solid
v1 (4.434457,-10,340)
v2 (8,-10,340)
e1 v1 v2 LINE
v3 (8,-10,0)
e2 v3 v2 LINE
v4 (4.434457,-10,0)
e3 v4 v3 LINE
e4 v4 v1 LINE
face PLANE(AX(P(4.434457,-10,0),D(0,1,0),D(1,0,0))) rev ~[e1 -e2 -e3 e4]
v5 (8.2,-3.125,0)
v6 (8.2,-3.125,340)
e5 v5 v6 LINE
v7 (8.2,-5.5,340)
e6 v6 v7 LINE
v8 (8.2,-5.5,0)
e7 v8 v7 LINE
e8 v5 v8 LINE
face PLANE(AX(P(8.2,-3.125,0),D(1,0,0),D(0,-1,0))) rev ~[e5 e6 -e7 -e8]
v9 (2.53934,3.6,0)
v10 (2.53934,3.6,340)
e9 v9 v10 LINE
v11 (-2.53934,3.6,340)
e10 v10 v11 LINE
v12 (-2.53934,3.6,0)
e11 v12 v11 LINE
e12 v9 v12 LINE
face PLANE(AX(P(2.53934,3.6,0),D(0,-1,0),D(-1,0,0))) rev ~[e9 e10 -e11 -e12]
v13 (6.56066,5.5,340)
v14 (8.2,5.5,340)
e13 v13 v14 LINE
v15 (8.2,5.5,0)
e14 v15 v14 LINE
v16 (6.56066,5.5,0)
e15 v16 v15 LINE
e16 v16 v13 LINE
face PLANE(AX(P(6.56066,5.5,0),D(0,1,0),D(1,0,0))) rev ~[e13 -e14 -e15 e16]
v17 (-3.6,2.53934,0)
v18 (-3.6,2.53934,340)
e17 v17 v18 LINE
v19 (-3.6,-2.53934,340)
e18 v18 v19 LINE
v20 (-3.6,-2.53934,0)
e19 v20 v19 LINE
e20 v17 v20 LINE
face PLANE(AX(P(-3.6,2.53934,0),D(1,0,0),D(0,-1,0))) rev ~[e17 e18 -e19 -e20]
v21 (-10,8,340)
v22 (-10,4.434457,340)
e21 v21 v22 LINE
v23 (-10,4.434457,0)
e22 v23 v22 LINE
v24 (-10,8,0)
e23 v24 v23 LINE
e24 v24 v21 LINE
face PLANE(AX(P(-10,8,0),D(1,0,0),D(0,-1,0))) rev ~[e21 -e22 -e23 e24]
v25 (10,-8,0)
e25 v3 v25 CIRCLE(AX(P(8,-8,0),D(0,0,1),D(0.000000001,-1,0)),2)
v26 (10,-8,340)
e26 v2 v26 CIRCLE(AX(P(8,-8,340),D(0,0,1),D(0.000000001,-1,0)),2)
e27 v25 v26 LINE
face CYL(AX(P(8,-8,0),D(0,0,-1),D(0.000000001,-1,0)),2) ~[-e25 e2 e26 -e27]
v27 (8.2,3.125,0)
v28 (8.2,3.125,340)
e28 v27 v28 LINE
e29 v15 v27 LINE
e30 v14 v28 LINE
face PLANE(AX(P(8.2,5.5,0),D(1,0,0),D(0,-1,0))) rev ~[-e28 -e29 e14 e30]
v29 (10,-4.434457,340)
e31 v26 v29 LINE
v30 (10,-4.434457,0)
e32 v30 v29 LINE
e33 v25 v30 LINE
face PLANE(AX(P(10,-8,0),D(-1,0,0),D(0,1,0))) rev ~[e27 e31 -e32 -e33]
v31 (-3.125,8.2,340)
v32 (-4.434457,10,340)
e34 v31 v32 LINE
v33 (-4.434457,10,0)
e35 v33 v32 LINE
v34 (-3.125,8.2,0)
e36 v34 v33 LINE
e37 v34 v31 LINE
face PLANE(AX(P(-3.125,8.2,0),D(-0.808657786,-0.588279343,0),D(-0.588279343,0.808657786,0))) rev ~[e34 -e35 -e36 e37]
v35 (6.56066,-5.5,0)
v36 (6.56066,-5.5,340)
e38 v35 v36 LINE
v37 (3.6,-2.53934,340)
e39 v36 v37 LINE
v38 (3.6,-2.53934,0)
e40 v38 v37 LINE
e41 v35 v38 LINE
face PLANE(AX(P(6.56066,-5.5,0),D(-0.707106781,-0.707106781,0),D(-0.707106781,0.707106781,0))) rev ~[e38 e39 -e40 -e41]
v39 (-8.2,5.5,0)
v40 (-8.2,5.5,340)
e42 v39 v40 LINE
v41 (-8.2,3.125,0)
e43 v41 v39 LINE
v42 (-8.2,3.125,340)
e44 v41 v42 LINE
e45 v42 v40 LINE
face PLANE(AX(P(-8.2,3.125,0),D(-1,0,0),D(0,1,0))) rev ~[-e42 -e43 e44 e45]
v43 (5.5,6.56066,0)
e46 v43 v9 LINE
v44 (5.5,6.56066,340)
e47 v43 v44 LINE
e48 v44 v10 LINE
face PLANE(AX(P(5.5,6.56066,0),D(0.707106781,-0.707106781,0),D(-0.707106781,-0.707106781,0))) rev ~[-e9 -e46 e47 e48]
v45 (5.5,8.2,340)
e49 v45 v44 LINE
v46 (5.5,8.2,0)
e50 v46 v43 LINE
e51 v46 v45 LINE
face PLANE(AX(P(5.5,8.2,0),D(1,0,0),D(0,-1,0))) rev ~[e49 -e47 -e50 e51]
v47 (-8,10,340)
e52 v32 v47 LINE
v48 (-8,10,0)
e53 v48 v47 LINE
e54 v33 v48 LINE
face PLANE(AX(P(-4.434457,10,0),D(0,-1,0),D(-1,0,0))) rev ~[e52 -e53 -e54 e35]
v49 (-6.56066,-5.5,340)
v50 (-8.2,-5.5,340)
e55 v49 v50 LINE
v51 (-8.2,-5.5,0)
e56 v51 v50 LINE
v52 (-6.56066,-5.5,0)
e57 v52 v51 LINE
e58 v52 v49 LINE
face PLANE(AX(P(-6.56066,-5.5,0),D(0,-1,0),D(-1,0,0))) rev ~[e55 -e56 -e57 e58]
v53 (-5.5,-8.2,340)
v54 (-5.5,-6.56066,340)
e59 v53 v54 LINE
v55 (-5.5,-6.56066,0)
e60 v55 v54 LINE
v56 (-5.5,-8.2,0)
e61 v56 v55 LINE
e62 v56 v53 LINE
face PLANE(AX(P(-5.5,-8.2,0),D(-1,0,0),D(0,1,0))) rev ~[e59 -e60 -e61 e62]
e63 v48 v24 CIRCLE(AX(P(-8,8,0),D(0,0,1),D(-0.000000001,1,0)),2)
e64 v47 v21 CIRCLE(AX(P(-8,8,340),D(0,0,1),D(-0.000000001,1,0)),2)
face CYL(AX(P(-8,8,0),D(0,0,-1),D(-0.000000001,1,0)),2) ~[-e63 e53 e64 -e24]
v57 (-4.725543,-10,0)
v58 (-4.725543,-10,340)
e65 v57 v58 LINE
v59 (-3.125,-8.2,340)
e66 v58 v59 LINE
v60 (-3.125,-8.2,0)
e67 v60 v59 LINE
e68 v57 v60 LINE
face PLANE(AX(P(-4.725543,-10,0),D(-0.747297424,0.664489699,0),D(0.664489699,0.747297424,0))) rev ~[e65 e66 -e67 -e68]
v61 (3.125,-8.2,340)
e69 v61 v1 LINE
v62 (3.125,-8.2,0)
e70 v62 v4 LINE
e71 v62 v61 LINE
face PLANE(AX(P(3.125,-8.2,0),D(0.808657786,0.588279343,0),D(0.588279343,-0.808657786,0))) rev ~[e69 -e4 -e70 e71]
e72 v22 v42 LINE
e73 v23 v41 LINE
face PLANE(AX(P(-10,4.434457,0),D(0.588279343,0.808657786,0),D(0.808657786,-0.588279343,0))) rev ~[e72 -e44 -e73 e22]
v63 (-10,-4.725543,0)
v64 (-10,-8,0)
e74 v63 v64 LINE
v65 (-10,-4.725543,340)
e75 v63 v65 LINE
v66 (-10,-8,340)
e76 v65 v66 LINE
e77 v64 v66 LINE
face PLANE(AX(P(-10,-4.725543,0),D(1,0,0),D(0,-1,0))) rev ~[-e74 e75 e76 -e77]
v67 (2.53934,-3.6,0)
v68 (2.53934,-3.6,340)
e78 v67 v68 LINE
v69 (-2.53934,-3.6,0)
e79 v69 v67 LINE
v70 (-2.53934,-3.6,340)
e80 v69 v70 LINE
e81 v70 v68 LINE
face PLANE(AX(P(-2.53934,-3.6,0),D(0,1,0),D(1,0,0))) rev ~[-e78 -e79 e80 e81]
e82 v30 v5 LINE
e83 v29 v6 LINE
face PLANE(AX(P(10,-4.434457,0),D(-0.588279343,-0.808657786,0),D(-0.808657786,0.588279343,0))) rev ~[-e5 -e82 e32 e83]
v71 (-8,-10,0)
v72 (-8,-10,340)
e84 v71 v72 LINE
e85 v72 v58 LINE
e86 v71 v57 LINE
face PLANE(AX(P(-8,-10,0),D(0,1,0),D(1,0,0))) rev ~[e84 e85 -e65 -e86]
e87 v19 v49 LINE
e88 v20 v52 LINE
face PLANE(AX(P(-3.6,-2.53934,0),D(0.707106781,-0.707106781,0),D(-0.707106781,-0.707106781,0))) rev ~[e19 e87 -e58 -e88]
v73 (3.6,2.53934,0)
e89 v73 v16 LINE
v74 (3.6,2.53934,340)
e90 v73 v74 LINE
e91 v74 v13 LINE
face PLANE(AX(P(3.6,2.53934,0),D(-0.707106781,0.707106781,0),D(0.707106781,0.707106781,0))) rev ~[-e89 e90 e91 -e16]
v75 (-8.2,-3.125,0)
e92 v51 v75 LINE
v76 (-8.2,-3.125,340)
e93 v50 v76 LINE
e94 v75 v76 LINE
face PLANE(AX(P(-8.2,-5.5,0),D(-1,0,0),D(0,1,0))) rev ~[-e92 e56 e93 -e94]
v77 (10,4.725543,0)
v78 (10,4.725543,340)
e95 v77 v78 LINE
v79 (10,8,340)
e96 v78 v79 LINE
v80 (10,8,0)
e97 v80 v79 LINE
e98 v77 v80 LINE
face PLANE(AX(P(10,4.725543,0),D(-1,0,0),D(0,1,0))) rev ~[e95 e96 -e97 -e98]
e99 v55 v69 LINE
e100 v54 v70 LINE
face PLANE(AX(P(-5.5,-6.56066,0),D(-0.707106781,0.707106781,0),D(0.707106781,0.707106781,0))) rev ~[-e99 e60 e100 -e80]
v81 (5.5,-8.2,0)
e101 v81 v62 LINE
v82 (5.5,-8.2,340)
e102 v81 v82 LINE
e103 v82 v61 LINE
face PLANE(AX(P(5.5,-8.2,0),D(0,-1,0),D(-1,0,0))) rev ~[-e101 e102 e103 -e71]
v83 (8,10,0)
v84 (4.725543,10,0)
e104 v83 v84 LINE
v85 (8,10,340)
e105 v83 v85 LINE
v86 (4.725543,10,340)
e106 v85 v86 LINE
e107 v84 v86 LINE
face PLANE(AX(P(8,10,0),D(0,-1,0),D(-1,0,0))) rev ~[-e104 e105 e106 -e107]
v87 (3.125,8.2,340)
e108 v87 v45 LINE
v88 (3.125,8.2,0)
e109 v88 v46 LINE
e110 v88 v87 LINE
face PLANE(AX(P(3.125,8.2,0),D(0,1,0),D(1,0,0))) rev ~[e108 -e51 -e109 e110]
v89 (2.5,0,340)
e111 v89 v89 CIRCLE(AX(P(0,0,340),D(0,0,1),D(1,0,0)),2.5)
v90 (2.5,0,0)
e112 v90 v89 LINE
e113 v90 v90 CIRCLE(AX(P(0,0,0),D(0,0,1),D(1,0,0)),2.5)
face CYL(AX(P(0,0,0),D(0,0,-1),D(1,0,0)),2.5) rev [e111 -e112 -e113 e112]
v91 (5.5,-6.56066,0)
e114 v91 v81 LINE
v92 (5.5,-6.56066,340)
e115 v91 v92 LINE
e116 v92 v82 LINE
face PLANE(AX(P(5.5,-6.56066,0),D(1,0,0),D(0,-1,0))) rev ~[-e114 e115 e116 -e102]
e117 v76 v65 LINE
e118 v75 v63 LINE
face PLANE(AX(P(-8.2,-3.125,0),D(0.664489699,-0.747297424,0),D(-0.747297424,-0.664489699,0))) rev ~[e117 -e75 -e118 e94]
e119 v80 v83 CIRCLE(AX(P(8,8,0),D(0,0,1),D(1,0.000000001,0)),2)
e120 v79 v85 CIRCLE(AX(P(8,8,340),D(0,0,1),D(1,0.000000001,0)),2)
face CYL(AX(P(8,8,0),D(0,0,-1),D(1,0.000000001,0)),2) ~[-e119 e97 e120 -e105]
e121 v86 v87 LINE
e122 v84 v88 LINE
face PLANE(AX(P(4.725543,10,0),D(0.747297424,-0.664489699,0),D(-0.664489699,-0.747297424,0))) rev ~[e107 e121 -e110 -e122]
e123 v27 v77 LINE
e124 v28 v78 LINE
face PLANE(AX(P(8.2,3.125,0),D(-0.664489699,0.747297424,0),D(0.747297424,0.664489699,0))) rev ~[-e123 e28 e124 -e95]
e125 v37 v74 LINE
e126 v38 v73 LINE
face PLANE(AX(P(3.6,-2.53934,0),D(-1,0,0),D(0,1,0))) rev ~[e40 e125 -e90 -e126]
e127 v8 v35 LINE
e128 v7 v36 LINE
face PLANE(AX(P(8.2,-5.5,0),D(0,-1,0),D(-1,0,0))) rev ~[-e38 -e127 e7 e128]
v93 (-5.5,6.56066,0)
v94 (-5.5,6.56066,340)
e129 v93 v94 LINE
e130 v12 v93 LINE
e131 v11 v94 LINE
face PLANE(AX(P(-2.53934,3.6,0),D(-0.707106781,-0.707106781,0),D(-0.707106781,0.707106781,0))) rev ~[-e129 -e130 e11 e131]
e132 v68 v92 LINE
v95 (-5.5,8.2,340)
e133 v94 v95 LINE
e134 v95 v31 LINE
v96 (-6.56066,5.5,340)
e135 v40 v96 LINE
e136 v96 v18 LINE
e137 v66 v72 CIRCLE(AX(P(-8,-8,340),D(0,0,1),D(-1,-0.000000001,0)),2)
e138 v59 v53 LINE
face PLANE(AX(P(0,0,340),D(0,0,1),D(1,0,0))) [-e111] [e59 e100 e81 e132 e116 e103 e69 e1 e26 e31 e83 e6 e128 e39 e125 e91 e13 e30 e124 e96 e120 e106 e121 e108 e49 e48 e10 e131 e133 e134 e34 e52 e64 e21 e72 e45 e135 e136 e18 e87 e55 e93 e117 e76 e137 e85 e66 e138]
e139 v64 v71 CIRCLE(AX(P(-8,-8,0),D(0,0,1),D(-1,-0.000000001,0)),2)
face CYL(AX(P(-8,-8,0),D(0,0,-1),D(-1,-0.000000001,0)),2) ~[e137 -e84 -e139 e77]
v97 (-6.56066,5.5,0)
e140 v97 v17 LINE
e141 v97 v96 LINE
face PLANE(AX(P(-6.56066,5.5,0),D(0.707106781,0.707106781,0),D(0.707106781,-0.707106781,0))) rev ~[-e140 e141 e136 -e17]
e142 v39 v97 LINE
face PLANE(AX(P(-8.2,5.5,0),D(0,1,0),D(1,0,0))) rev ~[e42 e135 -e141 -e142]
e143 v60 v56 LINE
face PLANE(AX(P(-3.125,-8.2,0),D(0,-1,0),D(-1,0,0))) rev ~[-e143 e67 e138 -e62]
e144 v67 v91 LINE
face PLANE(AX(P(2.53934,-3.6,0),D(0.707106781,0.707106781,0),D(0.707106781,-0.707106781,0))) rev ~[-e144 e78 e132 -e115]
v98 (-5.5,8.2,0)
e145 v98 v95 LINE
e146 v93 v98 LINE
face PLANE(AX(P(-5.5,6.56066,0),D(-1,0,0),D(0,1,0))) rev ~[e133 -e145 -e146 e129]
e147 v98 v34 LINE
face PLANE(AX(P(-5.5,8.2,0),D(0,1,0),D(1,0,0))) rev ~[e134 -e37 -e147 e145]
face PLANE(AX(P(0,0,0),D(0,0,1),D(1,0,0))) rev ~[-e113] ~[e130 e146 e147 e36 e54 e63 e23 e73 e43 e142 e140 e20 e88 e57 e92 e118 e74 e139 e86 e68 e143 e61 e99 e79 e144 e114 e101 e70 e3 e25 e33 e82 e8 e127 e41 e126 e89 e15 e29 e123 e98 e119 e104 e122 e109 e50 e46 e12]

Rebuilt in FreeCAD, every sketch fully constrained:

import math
import FreeCAD as App
import Part
import Sketcher
from FreeCAD import Vector
Q = App.Units.Quantity

doc = App.newDocument("Part")
params = doc.addObject("Spreadsheet::Sheet", "Params")
for row, (alias, value) in enumerate([
    ("sketch1_diameter", "5 mm"),
    ("sketch1_radius", "2 mm"),
    ("pad1_length", "340 mm"),
], start=1):
    params.set(f"A{row}", alias)
    params.set(f"B{row}", "=" + value)
    params.setAlias(f"B{row}", alias)

body = doc.addObject("PartDesign::Body", "Body")

# Sketch on XY plane
sketch1 = body.newObject("Sketcher::SketchObject", "Sketch")
sketch1.AttachmentSupport = (doc.getObject("XY_Plane"), [""])
sketch1.MapMode = "FlatFace"
sketch1.addGeometry([
    Part.LineSegment(Vector(-4.7, -10, 0), Vector(-3.1, -8.2, 0)),  # 0
    Part.LineSegment(Vector(-3.1, -8.2, 0), Vector(-5.5, -8.2, 0)),  # 1
    Part.LineSegment(Vector(-5.5, -8.2, 0), Vector(-5.5, -6.6, 0)),  # 2
    Part.LineSegment(Vector(-5.5, -6.6, 0), Vector(-2.5, -3.6, 0)),  # 3
    Part.LineSegment(Vector(-2.5, -3.6, 0), Vector(2.5, -3.6, 0)),  # 4
    Part.LineSegment(Vector(2.5, -3.6, 0), Vector(5.5, -6.6, 0)),  # 5
    Part.LineSegment(Vector(5.5, -6.6, 0), Vector(5.5, -8.2, 0)),  # 6
    Part.LineSegment(Vector(5.5, -8.2, 0), Vector(3.1, -8.2, 0)),  # 7
    Part.LineSegment(Vector(3.1, -8.2, 0), Vector(4.4, -10, 0)),  # 8
    Part.LineSegment(Vector(4.4, -10, 0), Vector(8, -10, 0)),  # 9
    Part.ArcOfCircle(Part.Circle(Vector(8, -8, 0), Vector(0, 0, 1), 2), math.radians(-90), math.radians(0)),  # 10
    Part.LineSegment(Vector(10, -8, 0), Vector(10, -4.4, 0)),  # 11
    Part.LineSegment(Vector(10, -4.4, 0), Vector(8.2, -3.1, 0)),  # 12
    Part.LineSegment(Vector(8.2, -3.1, 0), Vector(8.2, -5.5, 0)),  # 13
    Part.LineSegment(Vector(8.2, -5.5, 0), Vector(6.6, -5.5, 0)),  # 14
    Part.LineSegment(Vector(6.6, -5.5, 0), Vector(3.6, -2.5, 0)),  # 15
    Part.LineSegment(Vector(3.6, -2.5, 0), Vector(3.6, 2.5, 0)),  # 16
    Part.LineSegment(Vector(3.6, 2.5, 0), Vector(6.6, 5.5, 0)),  # 17
    Part.LineSegment(Vector(6.6, 5.5, 0), Vector(8.2, 5.5, 0)),  # 18
    Part.LineSegment(Vector(8.2, 5.5, 0), Vector(8.2, 3.1, 0)),  # 19
    Part.LineSegment(Vector(8.2, 3.1, 0), Vector(10, 4.7, 0)),  # 20
    Part.LineSegment(Vector(10, 4.7, 0), Vector(10, 8, 0)),  # 21
    Part.ArcOfCircle(Part.Circle(Vector(8, 8, 0), Vector(0, 0, 1), 2), math.radians(0), math.radians(90)),  # 22
    Part.LineSegment(Vector(8, 10, 0), Vector(4.7, 10, 0)),  # 23
    Part.LineSegment(Vector(4.7, 10, 0), Vector(3.1, 8.2, 0)),  # 24
    Part.LineSegment(Vector(3.1, 8.2, 0), Vector(5.5, 8.2, 0)),  # 25
    Part.LineSegment(Vector(5.5, 8.2, 0), Vector(5.5, 6.6, 0)),  # 26
    Part.LineSegment(Vector(5.5, 6.6, 0), Vector(2.5, 3.6, 0)),  # 27
    Part.LineSegment(Vector(2.5, 3.6, 0), Vector(-2.5, 3.6, 0)),  # 28
    Part.LineSegment(Vector(-2.5, 3.6, 0), Vector(-5.5, 6.6, 0)),  # 29
    Part.LineSegment(Vector(-5.5, 6.6, 0), Vector(-5.5, 8.2, 0)),  # 30
    Part.LineSegment(Vector(-5.5, 8.2, 0), Vector(-3.1, 8.2, 0)),  # 31
    Part.LineSegment(Vector(-3.1, 8.2, 0), Vector(-4.4, 10, 0)),  # 32
    Part.LineSegment(Vector(-4.4, 10, 0), Vector(-8, 10, 0)),  # 33
    Part.ArcOfCircle(Part.Circle(Vector(-8, 8, 0), Vector(0, 0, 1), 2), math.radians(90), math.radians(180)),  # 34
    Part.LineSegment(Vector(-10, 8, 0), Vector(-10, 4.4, 0)),  # 35
    Part.LineSegment(Vector(-10, 4.4, 0), Vector(-8.2, 3.1, 0)),  # 36
    Part.LineSegment(Vector(-8.2, 3.1, 0), Vector(-8.2, 5.5, 0)),  # 37
    Part.LineSegment(Vector(-8.2, 5.5, 0), Vector(-6.6, 5.5, 0)),  # 38
    Part.LineSegment(Vector(-6.6, 5.5, 0), Vector(-3.6, 2.5, 0)),  # 39
    Part.LineSegment(Vector(-3.6, 2.5, 0), Vector(-3.6, -2.5, 0)),  # 40
    Part.LineSegment(Vector(-3.6, -2.5, 0), Vector(-6.6, -5.5, 0)),  # 41
    Part.LineSegment(Vector(-6.6, -5.5, 0), Vector(-8.2, -5.5, 0)),  # 42
    Part.LineSegment(Vector(-8.2, -5.5, 0), Vector(-8.2, -3.1, 0)),  # 43
    Part.LineSegment(Vector(-8.2, -3.1, 0), Vector(-10, -4.7, 0)),  # 44
    Part.LineSegment(Vector(-10, -4.7, 0), Vector(-10, -8, 0)),  # 45
    Part.ArcOfCircle(Part.Circle(Vector(-8, -8, 0), Vector(0, 0, 1), 2), math.radians(-180), math.radians(-90)),  # 46
    Part.LineSegment(Vector(-8, -10, 0), Vector(-4.7, -10, 0)),  # 47
    Part.Circle(Vector(0, 0, 0), Vector(0, 0, 1), 2.5),  # 48
], False)
sketch1.addConstraint([
    Sketcher.Constraint("Coincident", 0, 2, 1, 1),
    Sketcher.Constraint("Coincident", 1, 2, 2, 1),
    Sketcher.Constraint("Coincident", 2, 2, 3, 1),
    Sketcher.Constraint("Coincident", 3, 2, 4, 1),
    Sketcher.Constraint("Coincident", 4, 2, 5, 1),
    Sketcher.Constraint("Coincident", 5, 2, 6, 1),
    Sketcher.Constraint("Coincident", 6, 2, 7, 1),
    Sketcher.Constraint("Coincident", 7, 2, 8, 1),
    Sketcher.Constraint("Coincident", 8, 2, 9, 1),
    Sketcher.Constraint("Tangent", 9, 2, 10, 1),
    Sketcher.Constraint("Tangent", 10, 2, 11, 1),
    Sketcher.Constraint("Coincident", 11, 2, 12, 1),
    Sketcher.Constraint("Coincident", 12, 2, 13, 1),
    Sketcher.Constraint("Coincident", 13, 2, 14, 1),
    Sketcher.Constraint("Coincident", 14, 2, 15, 1),
    Sketcher.Constraint("Coincident", 15, 2, 16, 1),
    Sketcher.Constraint("Coincident", 16, 2, 17, 1),
    Sketcher.Constraint("Coincident", 17, 2, 18, 1),
    Sketcher.Constraint("Coincident", 18, 2, 19, 1),
    Sketcher.Constraint("Coincident", 19, 2, 20, 1),
    Sketcher.Constraint("Coincident", 20, 2, 21, 1),
    Sketcher.Constraint("Tangent", 21, 2, 22, 1),
    Sketcher.Constraint("Tangent", 22, 2, 23, 1),
    Sketcher.Constraint("Coincident", 23, 2, 24, 1),
    Sketcher.Constraint("Coincident", 24, 2, 25, 1),
    Sketcher.Constraint("Coincident", 25, 2, 26, 1),
    Sketcher.Constraint("Coincident", 26, 2, 27, 1),
    Sketcher.Constraint("Coincident", 27, 2, 28, 1),
    Sketcher.Constraint("Coincident", 28, 2, 29, 1),
    Sketcher.Constraint("Coincident", 29, 2, 30, 1),
    Sketcher.Constraint("Coincident", 30, 2, 31, 1),
    Sketcher.Constraint("Coincident", 31, 2, 32, 1),
    Sketcher.Constraint("Coincident", 32, 2, 33, 1),
    Sketcher.Constraint("Tangent", 33, 2, 34, 1),
    Sketcher.Constraint("Tangent", 34, 2, 35, 1),
    Sketcher.Constraint("Coincident", 35, 2, 36, 1),
    Sketcher.Constraint("Coincident", 36, 2, 37, 1),
    Sketcher.Constraint("Coincident", 37, 2, 38, 1),
    Sketcher.Constraint("Coincident", 38, 2, 39, 1),
    Sketcher.Constraint("Coincident", 39, 2, 40, 1),
    Sketcher.Constraint("Coincident", 40, 2, 41, 1),
    Sketcher.Constraint("Coincident", 41, 2, 42, 1),
    Sketcher.Constraint("Coincident", 42, 2, 43, 1),
    Sketcher.Constraint("Coincident", 43, 2, 44, 1),
    Sketcher.Constraint("Coincident", 44, 2, 45, 1),
    Sketcher.Constraint("Tangent", 45, 2, 46, 1),
    Sketcher.Constraint("Tangent", 46, 2, 47, 1),
    Sketcher.Constraint("Coincident", 47, 2, 0, 1),
    Sketcher.Constraint("Horizontal", 1),
    Sketcher.Constraint("Vertical", 2),
    Sketcher.Constraint("Horizontal", 4),
    Sketcher.Constraint("Vertical", 6),
    Sketcher.Constraint("Horizontal", 7),
    Sketcher.Constraint("Horizontal", 9),
    Sketcher.Constraint("Vertical", 11),
    Sketcher.Constraint("Vertical", 13),
    Sketcher.Constraint("Horizontal", 14),
    Sketcher.Constraint("Vertical", 16),
    Sketcher.Constraint("Horizontal", 18),
    Sketcher.Constraint("Vertical", 19),
    Sketcher.Constraint("Vertical", 21),
    Sketcher.Constraint("Horizontal", 23),
    Sketcher.Constraint("Horizontal", 25),
    Sketcher.Constraint("Vertical", 26),
    Sketcher.Constraint("Horizontal", 28),
    Sketcher.Constraint("Vertical", 30),
    Sketcher.Constraint("Horizontal", 31),
    Sketcher.Constraint("Horizontal", 33),
    Sketcher.Constraint("Vertical", 35),
    Sketcher.Constraint("Vertical", 37),
    Sketcher.Constraint("Horizontal", 38),
    Sketcher.Constraint("Vertical", 40),
    Sketcher.Constraint("Horizontal", 42),
    Sketcher.Constraint("Vertical", 43),
    Sketcher.Constraint("Vertical", 45),
    Sketcher.Constraint("Horizontal", 47),
    Sketcher.Constraint("Coincident", 48, 3, -1, 1),
    Sketcher.Constraint("Equal", 10, 22),
    Sketcher.Constraint("Equal", 22, 34),
    Sketcher.Constraint("Equal", 34, 46),
    Sketcher.Constraint("Symmetric", 10, 3, 34, 3, -1, 1),
    Sketcher.Constraint("Symmetric", 22, 3, 46, 3, -1, 1),
    Sketcher.Constraint("Symmetric", 0, 2, 24, 2, -1, 1),
    Sketcher.Constraint("Symmetric", 2, 2, 26, 2, -1, 1),
    Sketcher.Constraint("Symmetric", 3, 2, 27, 2, -1, 1),
    Sketcher.Constraint("Symmetric", 5, 2, 29, 2, -1, 1),
    Sketcher.Constraint("Symmetric", 7, 2, 31, 2, -1, 1),
    Sketcher.Constraint("Symmetric", 12, 2, 36, 2, -1, 1),
    Sketcher.Constraint("Symmetric", 14, 2, 38, 2, -1, 1),
    Sketcher.Constraint("Symmetric", 15, 2, 39, 2, -1, 1),
    Sketcher.Constraint("Symmetric", 17, 2, 41, 2, -1, 1),
    Sketcher.Constraint("Symmetric", 19, 2, 43, 2, -1, 1),
    Sketcher.Constraint("Symmetric", 22, 3, 34, 3, -2),
    Sketcher.Constraint("Symmetric", 2, 2, 5, 2, -2),
    Sketcher.Constraint("Symmetric", 0, 2, 7, 2, -2),
    Sketcher.Constraint("Symmetric", 19, 2, 36, 2, -2),
    Sketcher.Constraint("Symmetric", 17, 2, 38, 2, -2),
    Sketcher.Constraint("Perpendicular", 3, 5),
    Sketcher.Constraint("Parallel", 5, 15),
    Sketcher.Constraint("Perpendicular", 15, 17),
    Sketcher.Constraint("Parallel", 0, 24),
    Sketcher.Constraint("Perpendicular", 27, 29),
    Sketcher.Constraint("Parallel", 8, 32),
    Sketcher.Constraint("Parallel", 12, 36),
    Sketcher.Constraint("Perpendicular", 39, 41),
    Sketcher.Constraint("Parallel", 20, 44),
    Sketcher.Constraint("Horizontal", 16, 2, 39, 2),
    Sketcher.Constraint("Equal", 42, 2),
    Sketcher.Constraint("Equal", 33, 11),
    Sketcher.Constraint("Equal", 31, 13),
    Sketcher.Constraint("Equal", 28, 16),
    Sketcher.Constraint("Equal", 47, 21),
    Sketcher.Constraint("Equal", 8, 12),
    Sketcher.Constraint("Equal", 5, 15),
    Sketcher.Constraint("Equal", 0, 20),
    Sketcher.Constraint("Diameter", 48, Q("5 mm")),
    Sketcher.Constraint("Radius", 10, Q("2 mm")),
    Sketcher.Constraint("DistanceX", -1, 1, 10, 3, Q("8 mm")),
    Sketcher.Constraint("DistanceY", 0, 2, -1, 1, Q("8.2 mm")),
    Sketcher.Constraint("DistanceX", 1, 2, -1, 1, Q("5.5 mm")),
    Sketcher.Constraint("DistanceY", 3, 2, -1, 1, Q("3.6 mm")),
    Sketcher.Constraint("DistanceX", 1, 2, 1, 1, Q("2.375 mm")),
    Sketcher.Constraint("DistanceX", 4, 1, 4, 2, Q("5.07868 mm")),
    Sketcher.Constraint("Distance", 0, Q("2.40868 mm")),
    Sketcher.Constraint("Distance", 8, Q("2.225911 mm")),
])
sketch1.setExpression("Constraints[115]", "Params.sketch1_diameter")
sketch1.setExpression("Constraints[116]", "Params.sketch1_radius")
pad1 = body.newObject("PartDesign::Pad", "Pad")
pad1.Profile = sketch1
pad1.setExpression("Length", "Params.pad1_length")

doc.recompute()
